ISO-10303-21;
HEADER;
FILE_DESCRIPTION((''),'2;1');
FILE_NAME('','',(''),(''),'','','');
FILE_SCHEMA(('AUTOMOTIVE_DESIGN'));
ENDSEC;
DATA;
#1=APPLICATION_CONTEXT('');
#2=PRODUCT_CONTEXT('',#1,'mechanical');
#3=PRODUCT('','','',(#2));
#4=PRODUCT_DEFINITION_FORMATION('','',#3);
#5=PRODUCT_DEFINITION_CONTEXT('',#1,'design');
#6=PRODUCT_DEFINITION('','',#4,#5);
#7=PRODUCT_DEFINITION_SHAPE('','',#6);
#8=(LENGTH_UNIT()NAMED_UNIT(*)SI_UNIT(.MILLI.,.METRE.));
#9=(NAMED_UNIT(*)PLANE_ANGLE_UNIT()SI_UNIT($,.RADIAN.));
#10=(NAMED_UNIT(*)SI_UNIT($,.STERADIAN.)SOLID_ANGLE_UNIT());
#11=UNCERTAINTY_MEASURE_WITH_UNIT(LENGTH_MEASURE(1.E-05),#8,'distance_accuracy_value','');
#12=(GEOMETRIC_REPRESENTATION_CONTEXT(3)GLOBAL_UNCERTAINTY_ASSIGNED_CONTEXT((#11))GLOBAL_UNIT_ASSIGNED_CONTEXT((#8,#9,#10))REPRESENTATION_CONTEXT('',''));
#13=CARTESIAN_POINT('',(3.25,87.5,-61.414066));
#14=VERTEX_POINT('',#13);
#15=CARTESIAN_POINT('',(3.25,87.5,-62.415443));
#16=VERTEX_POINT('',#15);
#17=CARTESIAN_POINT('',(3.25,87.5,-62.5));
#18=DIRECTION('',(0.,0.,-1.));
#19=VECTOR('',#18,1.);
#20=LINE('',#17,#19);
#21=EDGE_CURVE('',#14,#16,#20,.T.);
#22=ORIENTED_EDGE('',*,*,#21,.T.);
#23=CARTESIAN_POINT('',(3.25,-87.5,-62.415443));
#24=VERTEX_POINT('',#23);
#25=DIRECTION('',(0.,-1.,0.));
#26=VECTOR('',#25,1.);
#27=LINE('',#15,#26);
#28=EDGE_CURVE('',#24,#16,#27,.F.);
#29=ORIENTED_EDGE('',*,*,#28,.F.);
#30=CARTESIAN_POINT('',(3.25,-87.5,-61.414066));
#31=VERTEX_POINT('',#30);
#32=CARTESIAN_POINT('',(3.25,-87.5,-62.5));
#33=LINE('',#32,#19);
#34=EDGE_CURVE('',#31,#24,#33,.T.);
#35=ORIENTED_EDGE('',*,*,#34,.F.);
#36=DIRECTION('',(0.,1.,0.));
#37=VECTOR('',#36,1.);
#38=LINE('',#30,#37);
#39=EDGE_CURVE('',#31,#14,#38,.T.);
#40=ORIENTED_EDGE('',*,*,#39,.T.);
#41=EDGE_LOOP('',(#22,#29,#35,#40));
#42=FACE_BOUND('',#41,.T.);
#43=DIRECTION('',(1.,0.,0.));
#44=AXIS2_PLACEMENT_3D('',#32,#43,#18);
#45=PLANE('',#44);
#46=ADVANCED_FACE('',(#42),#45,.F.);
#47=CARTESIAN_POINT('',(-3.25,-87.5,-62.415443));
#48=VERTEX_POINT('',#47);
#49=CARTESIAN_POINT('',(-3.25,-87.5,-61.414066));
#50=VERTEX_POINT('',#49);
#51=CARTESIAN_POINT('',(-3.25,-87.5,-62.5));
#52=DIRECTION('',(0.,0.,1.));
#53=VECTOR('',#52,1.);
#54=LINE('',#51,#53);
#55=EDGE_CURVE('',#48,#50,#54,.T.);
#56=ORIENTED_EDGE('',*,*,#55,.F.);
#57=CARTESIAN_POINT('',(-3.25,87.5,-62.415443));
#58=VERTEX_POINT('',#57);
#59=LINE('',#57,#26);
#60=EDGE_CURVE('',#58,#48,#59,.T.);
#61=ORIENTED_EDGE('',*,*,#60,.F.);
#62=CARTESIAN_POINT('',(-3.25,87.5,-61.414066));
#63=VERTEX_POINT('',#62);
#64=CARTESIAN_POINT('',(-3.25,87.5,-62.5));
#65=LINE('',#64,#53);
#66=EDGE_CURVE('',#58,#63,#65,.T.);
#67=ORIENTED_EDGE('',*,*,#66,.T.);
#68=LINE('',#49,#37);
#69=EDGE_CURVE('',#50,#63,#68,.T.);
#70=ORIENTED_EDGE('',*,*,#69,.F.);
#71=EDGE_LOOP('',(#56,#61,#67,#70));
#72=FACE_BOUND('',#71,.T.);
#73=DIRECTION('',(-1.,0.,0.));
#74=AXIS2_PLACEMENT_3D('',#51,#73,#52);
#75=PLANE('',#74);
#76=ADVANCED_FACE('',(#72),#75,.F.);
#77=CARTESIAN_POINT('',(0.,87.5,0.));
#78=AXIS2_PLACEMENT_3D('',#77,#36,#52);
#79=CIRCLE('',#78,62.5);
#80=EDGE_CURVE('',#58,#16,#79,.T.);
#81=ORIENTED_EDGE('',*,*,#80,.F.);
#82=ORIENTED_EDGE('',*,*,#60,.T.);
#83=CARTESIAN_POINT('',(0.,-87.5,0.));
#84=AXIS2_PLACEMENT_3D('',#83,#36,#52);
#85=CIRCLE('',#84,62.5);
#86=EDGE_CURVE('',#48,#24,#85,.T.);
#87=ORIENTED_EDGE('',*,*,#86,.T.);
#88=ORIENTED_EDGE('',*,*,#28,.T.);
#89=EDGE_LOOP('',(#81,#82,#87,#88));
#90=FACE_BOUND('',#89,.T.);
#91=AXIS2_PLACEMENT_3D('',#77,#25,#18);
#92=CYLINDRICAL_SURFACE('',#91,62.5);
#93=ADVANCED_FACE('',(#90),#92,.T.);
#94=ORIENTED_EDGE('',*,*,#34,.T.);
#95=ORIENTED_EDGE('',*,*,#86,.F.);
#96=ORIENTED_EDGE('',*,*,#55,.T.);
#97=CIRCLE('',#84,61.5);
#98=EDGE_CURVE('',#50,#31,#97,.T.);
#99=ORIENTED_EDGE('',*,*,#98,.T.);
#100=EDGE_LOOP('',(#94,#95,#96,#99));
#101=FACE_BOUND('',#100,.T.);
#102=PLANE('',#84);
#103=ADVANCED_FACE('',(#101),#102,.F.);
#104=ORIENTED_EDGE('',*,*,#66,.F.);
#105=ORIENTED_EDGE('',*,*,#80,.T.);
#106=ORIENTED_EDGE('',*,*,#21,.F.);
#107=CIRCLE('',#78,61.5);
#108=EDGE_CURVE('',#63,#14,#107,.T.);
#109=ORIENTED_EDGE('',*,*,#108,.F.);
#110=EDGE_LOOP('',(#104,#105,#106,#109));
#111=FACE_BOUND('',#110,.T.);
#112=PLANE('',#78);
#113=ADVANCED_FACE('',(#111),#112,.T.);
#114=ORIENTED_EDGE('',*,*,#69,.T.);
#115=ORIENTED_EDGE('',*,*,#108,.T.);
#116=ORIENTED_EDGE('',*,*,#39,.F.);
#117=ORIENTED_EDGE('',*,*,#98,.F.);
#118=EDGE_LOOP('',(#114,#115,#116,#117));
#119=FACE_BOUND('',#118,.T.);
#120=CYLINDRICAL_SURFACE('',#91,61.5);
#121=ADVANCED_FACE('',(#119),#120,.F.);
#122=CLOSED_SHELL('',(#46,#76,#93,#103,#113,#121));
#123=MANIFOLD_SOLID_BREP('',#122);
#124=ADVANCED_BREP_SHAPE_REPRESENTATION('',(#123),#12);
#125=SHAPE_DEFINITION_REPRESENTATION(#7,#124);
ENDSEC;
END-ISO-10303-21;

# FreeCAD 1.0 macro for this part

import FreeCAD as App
import Part
import Sketcher
from FreeCAD import Vector
Q = App.Units.Quantity


def add_polygon(sketch, points):
    """Adds a closed chain of lines whose ends are joined by coincident constraints."""
    first, n = sketch.GeometryCount, len(points)
    for a, b in zip(points, points[1:] + points[:1]):
        sketch.addGeometry(Part.LineSegment(App.Vector(*a, 0), App.Vector(*b, 0)), False)
    for i in range(n):
        sketch.addConstraint(Sketcher.Constraint("Coincident", first + i, 2, first + (i + 1) % n, 1))

doc = App.newDocument("Part")
body = doc.addObject("PartDesign::Body", "Body")

sketch1 = doc.addObject("Sketcher::SketchObject", "Sketch")
body.addObject(sketch1)
sketch1.AttachmentSupport = (doc.XZ_Plane, [""])
sketch1.MapMode = "FlatFace"
sketch1.addGeometry([
    Part.Circle(Vector(0, 0, 0), Vector(0, 0, 1), 62.5),
    Part.Circle(Vector(0, 0, 0), Vector(0, 0, 1), 61.5),
], False)
sketch1.addConstraint([
    Sketcher.Constraint("Coincident", 0, 3, -1, 1),
    Sketcher.Constraint("Coincident", 1, 3, -1, 1),
    Sketcher.Constraint("Diameter", 0, Q("125 mm")),
    Sketcher.Constraint("Diameter", 1, Q("123 mm")),
])
pad1 = doc.addObject("PartDesign::Pad", "Pad")
body.addObject(pad1)
pad1.Profile = sketch1
pad1.Length = 175
pad1.Midplane = True

sketch2 = doc.addObject("Sketcher::SketchObject", "Sketch001")
body.addObject(sketch2)
sketch2.AttachmentSupport = (doc.XZ_Plane, [""])
sketch2.MapMode = "FlatFace"
sketch2.AttachmentOffset = App.Placement(Vector(0, 0, -87.5), App.Rotation())
add_polygon(sketch2, [(-3.25, -62.5), (-3.25, -61.414066), (3.25, -61.414066), (3.25, -62.5)])
sketch2.addConstraint([
    Sketcher.Constraint("Vertical", 0),
    Sketcher.Constraint("Horizontal", 1),
    Sketcher.Constraint("Vertical", 2),
    Sketcher.Constraint("Horizontal", 3),
    Sketcher.Constraint("DistanceX", 1, 1, 1, 2, Q("6.5 mm")),
    Sketcher.Constraint("DistanceY", 2, 2, -1, 1, Q("62.5 mm")),
    Sketcher.Constraint("DistanceX", 0, 2, -1, 1, Q("3.25 mm")),
    Sketcher.Constraint("DistanceY", 0, 1, 0, 2, Q("1.085934 mm")),
])
pocket1 = doc.addObject("PartDesign::Pocket", "Pocket")
body.addObject(pocket1)
pocket1.Profile = sketch2
pocket1.Type = "ThroughAll"
pocket1.Reversed = True

doc.recompute()
